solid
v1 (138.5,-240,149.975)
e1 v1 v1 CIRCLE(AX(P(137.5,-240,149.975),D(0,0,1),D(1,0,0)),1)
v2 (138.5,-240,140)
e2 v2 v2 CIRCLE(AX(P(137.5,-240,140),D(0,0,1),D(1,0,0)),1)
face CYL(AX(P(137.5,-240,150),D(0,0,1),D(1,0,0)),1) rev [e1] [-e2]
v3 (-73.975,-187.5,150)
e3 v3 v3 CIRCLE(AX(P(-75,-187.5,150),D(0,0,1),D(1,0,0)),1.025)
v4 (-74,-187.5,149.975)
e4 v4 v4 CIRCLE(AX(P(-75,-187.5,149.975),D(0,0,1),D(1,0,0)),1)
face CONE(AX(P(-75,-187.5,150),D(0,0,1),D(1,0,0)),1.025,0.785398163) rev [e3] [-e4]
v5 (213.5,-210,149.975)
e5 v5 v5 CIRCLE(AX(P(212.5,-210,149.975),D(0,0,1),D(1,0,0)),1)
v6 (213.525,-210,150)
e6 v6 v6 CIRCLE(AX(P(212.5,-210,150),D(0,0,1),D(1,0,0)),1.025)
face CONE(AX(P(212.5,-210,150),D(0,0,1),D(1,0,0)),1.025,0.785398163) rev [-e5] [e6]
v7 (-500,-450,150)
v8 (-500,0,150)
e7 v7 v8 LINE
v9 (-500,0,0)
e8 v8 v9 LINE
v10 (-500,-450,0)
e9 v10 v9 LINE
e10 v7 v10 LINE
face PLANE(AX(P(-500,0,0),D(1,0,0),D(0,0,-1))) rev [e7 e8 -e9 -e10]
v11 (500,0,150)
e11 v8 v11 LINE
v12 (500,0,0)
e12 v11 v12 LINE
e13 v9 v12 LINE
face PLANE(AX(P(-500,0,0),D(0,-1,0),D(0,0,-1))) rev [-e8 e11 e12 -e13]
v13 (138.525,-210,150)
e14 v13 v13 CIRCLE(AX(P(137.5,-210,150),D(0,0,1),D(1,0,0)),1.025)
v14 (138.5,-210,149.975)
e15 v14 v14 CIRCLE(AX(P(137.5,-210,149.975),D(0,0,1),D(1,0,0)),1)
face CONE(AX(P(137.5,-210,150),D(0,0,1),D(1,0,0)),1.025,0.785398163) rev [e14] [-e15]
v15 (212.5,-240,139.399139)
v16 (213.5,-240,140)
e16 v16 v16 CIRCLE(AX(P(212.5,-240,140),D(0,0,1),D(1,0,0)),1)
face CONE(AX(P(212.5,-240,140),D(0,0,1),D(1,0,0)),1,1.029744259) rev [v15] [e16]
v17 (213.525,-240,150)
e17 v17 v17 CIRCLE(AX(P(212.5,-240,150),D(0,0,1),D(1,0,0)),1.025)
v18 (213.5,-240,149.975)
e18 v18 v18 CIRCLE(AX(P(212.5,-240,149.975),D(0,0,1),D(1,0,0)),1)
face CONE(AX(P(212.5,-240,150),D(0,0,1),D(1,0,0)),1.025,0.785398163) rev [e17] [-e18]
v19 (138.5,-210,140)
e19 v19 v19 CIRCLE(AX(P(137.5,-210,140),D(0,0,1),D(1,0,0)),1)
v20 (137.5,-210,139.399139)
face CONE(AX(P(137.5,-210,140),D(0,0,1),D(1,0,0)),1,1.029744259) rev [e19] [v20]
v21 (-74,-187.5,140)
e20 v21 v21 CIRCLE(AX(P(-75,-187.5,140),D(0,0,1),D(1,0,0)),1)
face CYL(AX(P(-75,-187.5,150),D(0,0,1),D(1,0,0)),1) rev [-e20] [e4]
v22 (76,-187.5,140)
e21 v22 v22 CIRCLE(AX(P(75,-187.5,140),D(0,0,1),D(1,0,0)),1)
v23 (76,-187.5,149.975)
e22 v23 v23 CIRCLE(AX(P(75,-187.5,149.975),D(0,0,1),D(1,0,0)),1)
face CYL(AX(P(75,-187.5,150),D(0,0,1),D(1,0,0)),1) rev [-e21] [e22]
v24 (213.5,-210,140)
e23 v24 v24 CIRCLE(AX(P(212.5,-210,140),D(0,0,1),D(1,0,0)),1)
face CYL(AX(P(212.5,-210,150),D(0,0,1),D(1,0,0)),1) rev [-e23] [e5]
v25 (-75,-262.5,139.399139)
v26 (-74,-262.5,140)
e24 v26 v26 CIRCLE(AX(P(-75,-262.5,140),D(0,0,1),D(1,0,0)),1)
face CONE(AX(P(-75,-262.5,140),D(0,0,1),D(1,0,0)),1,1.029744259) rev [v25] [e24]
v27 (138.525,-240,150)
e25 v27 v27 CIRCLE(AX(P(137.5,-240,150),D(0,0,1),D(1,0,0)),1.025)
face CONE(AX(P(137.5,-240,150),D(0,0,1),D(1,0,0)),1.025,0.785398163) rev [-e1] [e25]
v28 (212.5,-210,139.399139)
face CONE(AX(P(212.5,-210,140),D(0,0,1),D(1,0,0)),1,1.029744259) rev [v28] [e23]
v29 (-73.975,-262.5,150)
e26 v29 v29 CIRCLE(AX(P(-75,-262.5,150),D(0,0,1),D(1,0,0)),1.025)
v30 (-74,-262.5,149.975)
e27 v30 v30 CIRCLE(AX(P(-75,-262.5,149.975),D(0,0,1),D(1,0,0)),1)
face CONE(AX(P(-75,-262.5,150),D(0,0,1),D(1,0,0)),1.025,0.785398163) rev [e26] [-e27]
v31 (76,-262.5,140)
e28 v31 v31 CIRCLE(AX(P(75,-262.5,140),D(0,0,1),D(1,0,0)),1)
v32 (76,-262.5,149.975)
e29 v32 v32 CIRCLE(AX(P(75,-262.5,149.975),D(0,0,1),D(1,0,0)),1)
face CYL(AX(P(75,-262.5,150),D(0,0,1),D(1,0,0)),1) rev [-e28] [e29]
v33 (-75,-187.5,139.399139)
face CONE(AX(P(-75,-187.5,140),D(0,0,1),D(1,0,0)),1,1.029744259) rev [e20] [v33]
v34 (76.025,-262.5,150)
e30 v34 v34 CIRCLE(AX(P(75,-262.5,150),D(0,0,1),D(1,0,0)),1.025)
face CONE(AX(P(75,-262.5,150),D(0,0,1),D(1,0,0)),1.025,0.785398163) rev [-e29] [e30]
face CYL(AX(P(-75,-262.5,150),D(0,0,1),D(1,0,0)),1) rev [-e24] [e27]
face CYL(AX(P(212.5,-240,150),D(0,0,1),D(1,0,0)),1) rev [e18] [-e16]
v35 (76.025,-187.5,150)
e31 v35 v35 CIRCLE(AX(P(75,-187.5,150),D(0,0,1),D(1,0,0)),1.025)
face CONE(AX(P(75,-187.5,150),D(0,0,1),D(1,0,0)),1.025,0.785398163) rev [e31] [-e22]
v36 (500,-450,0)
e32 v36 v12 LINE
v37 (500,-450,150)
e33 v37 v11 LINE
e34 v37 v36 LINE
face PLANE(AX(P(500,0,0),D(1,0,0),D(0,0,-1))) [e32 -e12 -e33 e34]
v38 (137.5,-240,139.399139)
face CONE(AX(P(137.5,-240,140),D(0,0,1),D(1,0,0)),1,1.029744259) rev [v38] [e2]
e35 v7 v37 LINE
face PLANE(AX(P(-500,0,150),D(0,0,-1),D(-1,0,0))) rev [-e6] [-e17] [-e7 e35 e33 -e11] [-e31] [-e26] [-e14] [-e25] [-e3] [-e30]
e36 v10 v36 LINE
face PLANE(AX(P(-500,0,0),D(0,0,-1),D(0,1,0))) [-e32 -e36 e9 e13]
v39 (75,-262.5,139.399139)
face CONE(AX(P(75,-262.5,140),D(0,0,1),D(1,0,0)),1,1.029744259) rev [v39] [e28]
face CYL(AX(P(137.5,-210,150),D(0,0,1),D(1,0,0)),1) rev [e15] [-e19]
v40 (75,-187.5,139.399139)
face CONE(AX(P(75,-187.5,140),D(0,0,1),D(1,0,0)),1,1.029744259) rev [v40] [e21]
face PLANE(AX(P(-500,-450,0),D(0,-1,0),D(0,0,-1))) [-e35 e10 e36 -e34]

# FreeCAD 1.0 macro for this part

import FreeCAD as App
import Part
import Sketcher
from FreeCAD import Vector


def add_polygon(sketch, points):
    """Adds a closed chain of lines whose ends are joined by coincident constraints."""
    first, n = sketch.GeometryCount, len(points)
    for a, b in zip(points, points[1:] + points[:1]):
        sketch.addGeometry(Part.LineSegment(App.Vector(*a, 0), App.Vector(*b, 0)), False)
    for i in range(n):
        sketch.addConstraint(Sketcher.Constraint("Coincident", first + i, 2, first + (i + 1) % n, 1))

doc = App.newDocument("Part")
body = doc.addObject("PartDesign::Body", "Body")

# Sketch on YZ plane
sketch1 = body.newObject("Sketcher::SketchObject", "Sketch")
sketch1.AttachmentSupport = (doc.getObject("YZ_Plane"), [""])
sketch1.MapMode = "FlatFace"
add_polygon(sketch1, [(-450, 150), (-450, 0), (0, 0), (0, 150)])  # lines 0-3
sketch1.addConstraint([
    Sketcher.Constraint("Vertical", 0),
    Sketcher.Constraint("Horizontal", 1),
    Sketcher.Constraint("Vertical", 2),
    Sketcher.Constraint("Horizontal", 3),
    Sketcher.Constraint("Coincident", 1, 2, -1, 1),
    Sketcher.Constraint("DistanceX", 1, 1, 1, 2, 450.0),
    Sketcher.Constraint("DistanceY", 0, 2, 0, 1, 150.0),
])
pad1 = body.newObject("PartDesign::Pad", "Pad")
pad1.Profile = sketch1
pad1.Type = "TwoLengths"
pad1.Length = 500
pad1.Length2 = 500

# Sketch on XY plane
sketch2 = body.newObject("Sketcher::SketchObject", "Sketch001")
sketch2.AttachmentSupport = (doc.getObject("XY_Plane"), [""])
sketch2.MapMode = "FlatFace"
sketch2.AttachmentOffset = App.Placement(Vector(0, 0, 150), App.Rotation())
sketch2.addGeometry([
    Part.Circle(Vector(75, -262.5, 0), Vector(0, 0, 1), 1),
    Part.Circle(Vector(-75, -187.5, 0), Vector(0, 0, 1), 1),
    Part.Circle(Vector(-75, -262.5, 0), Vector(0, 0, 1), 1),
    Part.Circle(Vector(75, -187.5, 0), Vector(0, 0, 1), 1),
], False)
sketch2.addConstraint([
    Sketcher.Constraint("Equal", 0, 1),
    Sketcher.Constraint("Equal", 1, 2),
    Sketcher.Constraint("Equal", 2, 3),
    Sketcher.Constraint("Symmetric", 0, 3, 2, 3, -2),
    Sketcher.Constraint("Symmetric", 1, 3, 3, 3, -2),
    Sketcher.Constraint("Vertical", 1, 3, 2, 3),
    Sketcher.Constraint("Diameter", 0, 2.0),
    Sketcher.Constraint("DistanceX", -1, 1, 0, 3, 75.0),
    Sketcher.Constraint("DistanceY", 0, 3, 1, 3, 75.0),
    Sketcher.Constraint("DistanceY", 0, 3, -1, 1, 262.5),
])
doc.recompute()
hole = body.newObject("PartDesign::Hole", "Hole")
hole.Profile = sketch2
hole.ThreadType = "None"
hole.Diameter = 2
hole.DepthType = "Dimension"
hole.Depth = 10
hole.DrillPoint = "Angled"
hole.DrillPointAngle = 118
hole.HoleCutType = "Countersink"
hole.HoleCutDiameter = 2.05
hole.HoleCutCountersinkAngle = 90

# Sketch on XY plane
sketch3 = body.newObject("Sketcher::SketchObject", "Sketch002")
sketch3.AttachmentSupport = (doc.getObject("XY_Plane"), [""])
sketch3.MapMode = "FlatFace"
sketch3.AttachmentOffset = App.Placement(Vector(0, 0, 150), App.Rotation())
sketch3.addGeometry([
    Part.Circle(Vector(212.5, -210, 0), Vector(0, 0, 1), 1),
    Part.Circle(Vector(137.5, -210, 0), Vector(0, 0, 1), 1),
    Part.Circle(Vector(137.5, -240, 0), Vector(0, 0, 1), 1),
    Part.Circle(Vector(212.5, -240, 0), Vector(0, 0, 1), 1),
], False)
sketch3.addConstraint([
    Sketcher.Constraint("Equal", 0, 1),
    Sketcher.Constraint("Equal", 1, 2),
    Sketcher.Constraint("Equal", 2, 3),
    Sketcher.Constraint("Horizontal", 0, 3, 1, 3),
    Sketcher.Constraint("Horizontal", 2, 3, 3, 3),
    Sketcher.Constraint("Vertical", 1, 3, 2, 3),
    Sketcher.Constraint("Vertical", 0, 3, 3, 3),
    Sketcher.Constraint("Diameter", 0, 2.0),
    Sketcher.Constraint("DistanceY", 0, 3, -1, 1, 210.0),
    Sketcher.Constraint("DistanceY", 2, 3, -1, 1, 240.0),
    Sketcher.Constraint("DistanceX", 1, 3, 0, 3, 75.0),
    Sketcher.Constraint("DistanceX", -1, 1, 0, 3, 212.5),
])
doc.recompute()
hole2 = body.newObject("PartDesign::Hole", "Hole001")
hole2.Profile = sketch3
hole2.ThreadType = "None"
hole2.Diameter = 2
hole2.DepthType = "Dimension"
hole2.Depth = 10
hole2.DrillPoint = "Angled"
hole2.DrillPointAngle = 118
hole2.HoleCutType = "Countersink"
hole2.HoleCutDiameter = 2.05
hole2.HoleCutCountersinkAngle = 90

doc.recompute()
